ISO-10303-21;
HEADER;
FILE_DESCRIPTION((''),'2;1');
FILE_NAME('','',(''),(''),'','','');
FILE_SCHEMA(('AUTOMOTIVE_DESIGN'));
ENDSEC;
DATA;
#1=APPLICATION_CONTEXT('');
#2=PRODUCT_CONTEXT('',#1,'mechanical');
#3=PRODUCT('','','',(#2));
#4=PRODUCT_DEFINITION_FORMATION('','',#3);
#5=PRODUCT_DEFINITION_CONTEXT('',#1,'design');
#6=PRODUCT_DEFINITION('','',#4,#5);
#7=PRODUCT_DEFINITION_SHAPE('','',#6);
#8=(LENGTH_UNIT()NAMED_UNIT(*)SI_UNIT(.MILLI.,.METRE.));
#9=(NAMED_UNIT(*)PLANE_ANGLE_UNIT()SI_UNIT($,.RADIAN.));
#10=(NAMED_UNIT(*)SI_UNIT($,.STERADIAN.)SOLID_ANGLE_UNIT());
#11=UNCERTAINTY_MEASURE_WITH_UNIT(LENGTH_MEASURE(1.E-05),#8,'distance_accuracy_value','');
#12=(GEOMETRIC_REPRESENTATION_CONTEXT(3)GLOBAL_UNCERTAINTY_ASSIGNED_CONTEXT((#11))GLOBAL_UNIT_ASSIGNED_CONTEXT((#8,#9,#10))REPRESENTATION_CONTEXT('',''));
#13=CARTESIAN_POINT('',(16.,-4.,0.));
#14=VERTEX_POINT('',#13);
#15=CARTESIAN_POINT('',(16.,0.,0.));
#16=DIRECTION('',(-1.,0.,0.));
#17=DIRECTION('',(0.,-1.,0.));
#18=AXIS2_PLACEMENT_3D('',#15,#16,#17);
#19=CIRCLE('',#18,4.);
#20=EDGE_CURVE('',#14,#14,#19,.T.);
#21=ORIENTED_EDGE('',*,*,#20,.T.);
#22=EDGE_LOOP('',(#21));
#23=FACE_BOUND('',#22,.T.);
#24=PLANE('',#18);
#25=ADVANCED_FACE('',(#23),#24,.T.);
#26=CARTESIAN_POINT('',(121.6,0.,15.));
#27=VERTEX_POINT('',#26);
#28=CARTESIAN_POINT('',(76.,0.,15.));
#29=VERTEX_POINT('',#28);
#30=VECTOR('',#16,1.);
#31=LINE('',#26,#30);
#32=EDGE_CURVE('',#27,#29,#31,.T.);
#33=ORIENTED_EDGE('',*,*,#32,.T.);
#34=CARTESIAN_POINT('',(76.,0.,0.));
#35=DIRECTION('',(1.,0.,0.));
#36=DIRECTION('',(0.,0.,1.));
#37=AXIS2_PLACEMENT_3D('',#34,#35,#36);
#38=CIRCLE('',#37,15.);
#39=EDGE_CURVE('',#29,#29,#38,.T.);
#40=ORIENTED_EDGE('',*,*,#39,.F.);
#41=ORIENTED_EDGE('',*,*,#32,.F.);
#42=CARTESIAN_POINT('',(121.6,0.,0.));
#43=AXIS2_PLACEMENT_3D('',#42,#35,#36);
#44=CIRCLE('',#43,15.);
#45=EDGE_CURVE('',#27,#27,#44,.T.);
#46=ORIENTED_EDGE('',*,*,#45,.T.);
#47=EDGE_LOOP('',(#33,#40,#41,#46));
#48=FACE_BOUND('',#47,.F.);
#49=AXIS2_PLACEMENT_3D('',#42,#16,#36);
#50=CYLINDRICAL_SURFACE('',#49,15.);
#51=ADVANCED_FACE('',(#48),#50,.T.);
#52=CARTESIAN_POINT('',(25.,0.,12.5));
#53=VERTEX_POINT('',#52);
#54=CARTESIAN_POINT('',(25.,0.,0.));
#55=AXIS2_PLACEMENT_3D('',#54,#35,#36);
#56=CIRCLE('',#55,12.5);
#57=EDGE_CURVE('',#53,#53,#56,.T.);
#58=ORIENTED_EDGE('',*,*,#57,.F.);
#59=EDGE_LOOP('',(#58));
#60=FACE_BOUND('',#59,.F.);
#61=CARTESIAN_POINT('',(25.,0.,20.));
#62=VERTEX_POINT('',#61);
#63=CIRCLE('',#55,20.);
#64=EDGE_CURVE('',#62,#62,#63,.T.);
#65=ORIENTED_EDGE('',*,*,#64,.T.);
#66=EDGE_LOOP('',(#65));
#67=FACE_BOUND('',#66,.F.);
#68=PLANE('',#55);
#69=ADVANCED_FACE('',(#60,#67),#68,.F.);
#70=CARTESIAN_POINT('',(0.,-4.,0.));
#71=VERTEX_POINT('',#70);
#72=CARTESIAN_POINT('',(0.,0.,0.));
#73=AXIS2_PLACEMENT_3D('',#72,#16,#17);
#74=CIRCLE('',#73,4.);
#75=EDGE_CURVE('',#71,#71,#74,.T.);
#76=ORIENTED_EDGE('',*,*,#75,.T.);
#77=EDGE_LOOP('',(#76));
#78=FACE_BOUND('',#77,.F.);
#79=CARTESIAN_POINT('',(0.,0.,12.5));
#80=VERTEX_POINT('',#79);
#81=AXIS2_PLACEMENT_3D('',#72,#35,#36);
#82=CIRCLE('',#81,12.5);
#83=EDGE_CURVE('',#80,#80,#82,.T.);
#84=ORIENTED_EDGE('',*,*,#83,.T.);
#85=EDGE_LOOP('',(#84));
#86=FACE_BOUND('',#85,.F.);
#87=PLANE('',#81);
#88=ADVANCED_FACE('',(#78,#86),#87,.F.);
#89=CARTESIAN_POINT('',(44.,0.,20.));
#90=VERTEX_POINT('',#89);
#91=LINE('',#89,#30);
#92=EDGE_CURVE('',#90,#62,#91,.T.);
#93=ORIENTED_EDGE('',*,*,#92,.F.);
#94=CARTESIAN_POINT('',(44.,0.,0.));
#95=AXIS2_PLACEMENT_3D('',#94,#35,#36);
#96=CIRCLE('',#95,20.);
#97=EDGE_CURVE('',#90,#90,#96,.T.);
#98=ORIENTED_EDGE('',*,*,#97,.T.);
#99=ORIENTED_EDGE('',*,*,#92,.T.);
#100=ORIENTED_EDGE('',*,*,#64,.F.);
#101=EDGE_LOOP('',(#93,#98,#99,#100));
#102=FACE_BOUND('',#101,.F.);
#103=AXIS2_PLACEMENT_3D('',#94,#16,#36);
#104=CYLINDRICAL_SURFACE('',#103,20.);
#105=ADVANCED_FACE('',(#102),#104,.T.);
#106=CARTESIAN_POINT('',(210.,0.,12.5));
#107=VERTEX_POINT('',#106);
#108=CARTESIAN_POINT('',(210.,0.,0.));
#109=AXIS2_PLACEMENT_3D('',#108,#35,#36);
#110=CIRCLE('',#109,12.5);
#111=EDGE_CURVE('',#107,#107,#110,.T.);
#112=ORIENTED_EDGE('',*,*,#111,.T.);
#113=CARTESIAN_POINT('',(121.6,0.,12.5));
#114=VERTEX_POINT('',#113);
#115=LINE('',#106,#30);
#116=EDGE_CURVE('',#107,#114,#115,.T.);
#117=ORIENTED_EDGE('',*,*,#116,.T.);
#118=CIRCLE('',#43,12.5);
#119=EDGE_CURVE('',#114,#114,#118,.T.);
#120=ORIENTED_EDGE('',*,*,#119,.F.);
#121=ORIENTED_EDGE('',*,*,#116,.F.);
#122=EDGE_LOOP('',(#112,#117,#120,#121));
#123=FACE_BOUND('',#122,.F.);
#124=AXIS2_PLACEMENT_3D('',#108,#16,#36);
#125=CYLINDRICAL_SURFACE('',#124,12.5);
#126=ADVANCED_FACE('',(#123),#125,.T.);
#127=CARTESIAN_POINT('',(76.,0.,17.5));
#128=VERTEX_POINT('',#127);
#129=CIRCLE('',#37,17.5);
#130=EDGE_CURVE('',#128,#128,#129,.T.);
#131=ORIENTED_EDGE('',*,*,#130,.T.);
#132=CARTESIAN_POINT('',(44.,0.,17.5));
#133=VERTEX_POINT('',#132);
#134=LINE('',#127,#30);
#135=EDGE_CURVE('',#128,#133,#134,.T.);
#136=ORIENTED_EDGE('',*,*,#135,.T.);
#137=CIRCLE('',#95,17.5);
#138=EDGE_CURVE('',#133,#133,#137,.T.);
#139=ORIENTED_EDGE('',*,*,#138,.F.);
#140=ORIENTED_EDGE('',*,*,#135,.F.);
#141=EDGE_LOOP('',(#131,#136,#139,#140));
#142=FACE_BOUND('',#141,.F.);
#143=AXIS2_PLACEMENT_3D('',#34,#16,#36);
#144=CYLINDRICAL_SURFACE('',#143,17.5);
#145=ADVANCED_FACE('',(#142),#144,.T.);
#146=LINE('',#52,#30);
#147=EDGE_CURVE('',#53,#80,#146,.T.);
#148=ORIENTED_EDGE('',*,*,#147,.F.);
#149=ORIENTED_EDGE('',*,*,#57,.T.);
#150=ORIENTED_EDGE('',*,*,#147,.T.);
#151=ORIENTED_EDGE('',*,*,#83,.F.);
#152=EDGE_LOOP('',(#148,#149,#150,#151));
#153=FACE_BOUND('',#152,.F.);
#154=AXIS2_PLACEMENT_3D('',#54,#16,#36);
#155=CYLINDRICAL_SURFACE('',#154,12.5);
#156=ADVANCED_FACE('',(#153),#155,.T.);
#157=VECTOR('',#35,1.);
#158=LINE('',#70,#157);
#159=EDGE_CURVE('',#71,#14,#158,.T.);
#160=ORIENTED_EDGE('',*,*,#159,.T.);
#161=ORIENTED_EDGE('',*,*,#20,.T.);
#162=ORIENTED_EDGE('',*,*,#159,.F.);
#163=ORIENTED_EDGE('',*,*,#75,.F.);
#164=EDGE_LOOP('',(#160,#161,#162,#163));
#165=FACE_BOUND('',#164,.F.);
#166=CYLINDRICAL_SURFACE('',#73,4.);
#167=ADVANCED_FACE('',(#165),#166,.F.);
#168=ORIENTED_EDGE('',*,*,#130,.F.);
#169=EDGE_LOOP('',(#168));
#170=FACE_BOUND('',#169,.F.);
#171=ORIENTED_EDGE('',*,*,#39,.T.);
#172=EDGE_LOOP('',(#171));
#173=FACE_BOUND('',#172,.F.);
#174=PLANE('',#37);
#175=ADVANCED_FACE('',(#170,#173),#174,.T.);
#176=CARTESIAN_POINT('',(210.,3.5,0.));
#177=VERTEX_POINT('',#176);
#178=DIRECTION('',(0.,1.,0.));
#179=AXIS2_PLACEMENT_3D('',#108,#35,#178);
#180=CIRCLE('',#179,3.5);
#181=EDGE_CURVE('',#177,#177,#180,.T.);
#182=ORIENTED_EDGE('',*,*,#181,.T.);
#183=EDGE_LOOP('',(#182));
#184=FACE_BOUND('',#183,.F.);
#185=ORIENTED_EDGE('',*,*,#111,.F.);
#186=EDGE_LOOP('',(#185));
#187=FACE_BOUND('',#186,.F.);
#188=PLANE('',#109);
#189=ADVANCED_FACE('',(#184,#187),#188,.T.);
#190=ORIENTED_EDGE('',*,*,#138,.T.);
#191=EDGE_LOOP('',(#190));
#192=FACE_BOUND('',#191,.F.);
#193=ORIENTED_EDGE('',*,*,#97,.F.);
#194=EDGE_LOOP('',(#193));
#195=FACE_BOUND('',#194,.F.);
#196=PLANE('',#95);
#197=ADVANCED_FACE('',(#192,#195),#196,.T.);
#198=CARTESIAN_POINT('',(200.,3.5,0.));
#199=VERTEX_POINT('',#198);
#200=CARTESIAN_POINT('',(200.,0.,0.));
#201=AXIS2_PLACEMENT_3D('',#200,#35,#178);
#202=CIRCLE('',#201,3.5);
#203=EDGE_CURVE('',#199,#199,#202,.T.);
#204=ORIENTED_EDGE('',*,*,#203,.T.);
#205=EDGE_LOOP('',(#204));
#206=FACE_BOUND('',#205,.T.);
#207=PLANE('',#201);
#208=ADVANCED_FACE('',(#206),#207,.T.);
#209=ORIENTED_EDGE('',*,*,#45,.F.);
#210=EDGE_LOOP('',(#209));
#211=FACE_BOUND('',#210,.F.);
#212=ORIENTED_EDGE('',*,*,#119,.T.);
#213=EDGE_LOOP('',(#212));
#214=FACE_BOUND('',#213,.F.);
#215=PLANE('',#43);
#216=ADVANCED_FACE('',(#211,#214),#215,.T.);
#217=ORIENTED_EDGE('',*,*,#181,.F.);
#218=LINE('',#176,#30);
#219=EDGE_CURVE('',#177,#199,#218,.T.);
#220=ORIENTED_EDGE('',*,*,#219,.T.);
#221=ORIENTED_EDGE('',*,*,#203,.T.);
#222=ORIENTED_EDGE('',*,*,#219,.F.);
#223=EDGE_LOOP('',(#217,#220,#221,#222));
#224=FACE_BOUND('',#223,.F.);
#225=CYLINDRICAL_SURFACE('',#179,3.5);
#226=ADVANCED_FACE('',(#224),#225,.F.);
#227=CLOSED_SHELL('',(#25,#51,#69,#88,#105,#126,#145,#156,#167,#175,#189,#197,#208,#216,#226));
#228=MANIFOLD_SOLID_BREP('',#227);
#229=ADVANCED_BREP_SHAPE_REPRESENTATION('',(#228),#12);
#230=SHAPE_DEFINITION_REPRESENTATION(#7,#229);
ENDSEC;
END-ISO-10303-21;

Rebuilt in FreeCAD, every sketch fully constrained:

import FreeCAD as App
import Part
import Sketcher
from FreeCAD import Vector
Q = App.Units.Quantity


def add_polygon(sketch, points):
    """Adds a closed chain of lines whose ends are joined by coincident constraints."""
    first, n = sketch.GeometryCount, len(points)
    for a, b in zip(points, points[1:] + points[:1]):
        sketch.addGeometry(Part.LineSegment(App.Vector(*a, 0), App.Vector(*b, 0)), False)
    for i in range(n):
        sketch.addConstraint(Sketcher.Constraint("Coincident", first + i, 2, first + (i + 1) % n, 1))

doc = App.newDocument("Part")
body = doc.addObject("PartDesign::Body", "Body")

# Sketch on XZ plane
sketch1 = body.newObject("Sketcher::SketchObject", "Sketch")
sketch1.AttachmentSupport = (doc.getObject("XZ_Plane"), [""])
sketch1.MapMode = "FlatFace"
add_polygon(sketch1, [(0, 12.5), (0, 0), (210, 0), (210, 12.5), (121.6, 12.5), (121.6, 15), (76, 15), (76, 17.5), (44, 17.5), (44, 20), (25, 20), (25, 12.5)])  # lines 0-11
sketch1.addConstraint(Sketcher.Constraint("Vertical", 0))
sketch1.addConstraint(Sketcher.Constraint("Horizontal", 1))
sketch1.addConstraint(Sketcher.Constraint("Vertical", 2))
sketch1.addConstraint(Sketcher.Constraint("Horizontal", 3))
sketch1.addConstraint(Sketcher.Constraint("Vertical", 4))
sketch1.addConstraint(Sketcher.Constraint("Horizontal", 5))
sketch1.addConstraint(Sketcher.Constraint("Vertical", 6))
sketch1.addConstraint(Sketcher.Constraint("Horizontal", 7))
sketch1.addConstraint(Sketcher.Constraint("Vertical", 8))
sketch1.addConstraint(Sketcher.Constraint("Horizontal", 9))
sketch1.addConstraint(Sketcher.Constraint("Vertical", 10))
sketch1.addConstraint(Sketcher.Constraint("Horizontal", 11))
sketch1.addConstraint(Sketcher.Constraint("Coincident", 0, 2, -1, 1))
sketch1.addConstraint(Sketcher.Constraint("Horizontal", 3, 2, 10, 2))
sketch1.addConstraint(Sketcher.Constraint("Equal", 4, 6))
sketch1.addConstraint(Sketcher.Constraint("Equal", 6, 8))
sketch1.addConstraint(Sketcher.Constraint("DistanceX", 1, 1, 1, 2, Q("210 mm")))
sketch1.addConstraint(Sketcher.Constraint("DistanceX", 7, 2, 7, 1, Q("32 mm")))
sketch1.addConstraint(Sketcher.Constraint("DistanceX", 9, 2, 9, 1, Q("19 mm")))
sketch1.addConstraint(Sketcher.Constraint("DistanceX", 11, 2, 11, 1, Q("25 mm")))
sketch1.addConstraint(Sketcher.Constraint("DistanceX", 3, 2, 3, 1, Q("88.4 mm")))
sketch1.addConstraint(Sketcher.Constraint("DistanceY", 0, 2, 0, 1, Q("12.5 mm")))
sketch1.addConstraint(Sketcher.Constraint("DistanceY", 4, 1, 4, 2, Q("2.5 mm")))
revolution = body.newObject("PartDesign::Revolution", "Revolution")
revolution.Profile = sketch1
revolution.ReferenceAxis = (sketch1, ["H_Axis"])
revolution.Angle = 360

# Sketch on YZ plane
sketch2 = body.newObject("Sketcher::SketchObject", "Sketch001")
sketch2.AttachmentSupport = (doc.getObject("YZ_Plane"), [""])
sketch2.MapMode = "FlatFace"
sketch2.addGeometry(Part.Circle(Vector(0, 0, 0), Vector(0, 0, 1), 4), False)
sketch2.addConstraint(Sketcher.Constraint("Coincident", 0, 3, -1, 1))
sketch2.addConstraint(Sketcher.Constraint("Diameter", 0, Q("8 mm")))
pocket1 = body.newObject("PartDesign::Pocket", "Pocket")
pocket1.Profile = sketch2
pocket1.Length = 16
pocket1.Reversed = True

# Sketch on YZ plane
sketch3 = body.newObject("Sketcher::SketchObject", "Sketch002")
sketch3.AttachmentSupport = (doc.getObject("YZ_Plane"), [""])
sketch3.MapMode = "FlatFace"
sketch3.AttachmentOffset = App.Placement(Vector(0, 0, 210), App.Rotation())
sketch3.addGeometry(Part.Circle(Vector(0, 0, 0), Vector(0, 0, 1), 3.5), False)
sketch3.addConstraint(Sketcher.Constraint("Coincident", 0, 3, -1, 1))
sketch3.addConstraint(Sketcher.Constraint("Diameter", 0, Q("7 mm")))
pocket2 = body.newObject("PartDesign::Pocket", "Pocket001")
pocket2.Profile = sketch3
pocket2.Length = 10

doc.recompute()
